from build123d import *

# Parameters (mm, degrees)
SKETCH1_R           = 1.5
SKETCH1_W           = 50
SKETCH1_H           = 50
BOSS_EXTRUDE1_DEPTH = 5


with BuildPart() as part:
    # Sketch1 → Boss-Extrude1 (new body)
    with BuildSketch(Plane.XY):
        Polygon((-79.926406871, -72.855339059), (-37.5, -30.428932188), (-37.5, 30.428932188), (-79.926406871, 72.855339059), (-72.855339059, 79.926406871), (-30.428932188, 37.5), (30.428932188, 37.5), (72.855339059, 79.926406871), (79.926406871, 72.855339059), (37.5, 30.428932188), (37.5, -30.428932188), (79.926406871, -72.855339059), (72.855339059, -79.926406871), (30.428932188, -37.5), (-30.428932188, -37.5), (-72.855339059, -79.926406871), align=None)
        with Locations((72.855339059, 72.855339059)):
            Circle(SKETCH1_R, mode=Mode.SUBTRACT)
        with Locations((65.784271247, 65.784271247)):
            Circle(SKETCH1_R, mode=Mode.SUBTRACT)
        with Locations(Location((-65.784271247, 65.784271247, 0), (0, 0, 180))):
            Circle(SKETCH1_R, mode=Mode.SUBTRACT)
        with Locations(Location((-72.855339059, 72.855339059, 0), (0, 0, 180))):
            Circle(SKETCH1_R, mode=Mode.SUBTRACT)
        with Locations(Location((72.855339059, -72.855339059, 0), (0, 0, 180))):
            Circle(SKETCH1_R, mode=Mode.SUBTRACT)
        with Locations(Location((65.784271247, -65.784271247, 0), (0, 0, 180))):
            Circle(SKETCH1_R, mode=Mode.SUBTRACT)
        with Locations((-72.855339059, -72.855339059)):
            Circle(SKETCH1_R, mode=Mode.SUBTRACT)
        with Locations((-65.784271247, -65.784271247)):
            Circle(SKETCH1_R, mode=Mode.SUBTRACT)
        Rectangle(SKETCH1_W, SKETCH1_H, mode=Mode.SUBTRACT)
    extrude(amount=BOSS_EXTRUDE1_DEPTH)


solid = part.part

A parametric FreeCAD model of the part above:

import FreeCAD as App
import Part
import Sketcher
from FreeCAD import Vector
Q = App.Units.Quantity

doc = App.newDocument("Part")
body = doc.addObject("PartDesign::Body", "Body")

# Sketch on XY plane
sketch1 = doc.addObject("Sketcher::SketchObject", "Sketch")
body.addObject(sketch1)
sketch1.AttachmentSupport = (doc.XY_Plane, [""])
sketch1.MapMode = "FlatFace"
sketch1.addGeometry([
    Part.LineSegment(Vector(-37.5, -30.4, 0), Vector(-79.9, -72.9, 0)),  # 0
    Part.LineSegment(Vector(-79.9, -72.9, 0), Vector(-72.9, -79.9, 0)),  # 1
    Part.LineSegment(Vector(-72.9, -79.9, 0), Vector(-30.4, -37.5, 0)),  # 2
    Part.LineSegment(Vector(-30.4, -37.5, 0), Vector(30.4, -37.5, 0)),  # 3
    Part.LineSegment(Vector(30.4, -37.5, 0), Vector(72.9, -79.9, 0)),  # 4
    Part.LineSegment(Vector(72.9, -79.9, 0), Vector(79.9, -72.9, 0)),  # 5
    Part.LineSegment(Vector(79.9, -72.9, 0), Vector(37.5, -30.4, 0)),  # 6
    Part.LineSegment(Vector(37.5, -30.4, 0), Vector(37.5, 30.4, 0)),  # 7
    Part.LineSegment(Vector(37.5, 30.4, 0), Vector(79.9, 72.9, 0)),  # 8
    Part.LineSegment(Vector(79.9, 72.9, 0), Vector(72.9, 79.9, 0)),  # 9
    Part.LineSegment(Vector(72.9, 79.9, 0), Vector(30.4, 37.5, 0)),  # 10
    Part.LineSegment(Vector(30.4, 37.5, 0), Vector(-30.4, 37.5, 0)),  # 11
    Part.LineSegment(Vector(-30.4, 37.5, 0), Vector(-72.9, 79.9, 0)),  # 12
    Part.LineSegment(Vector(-72.9, 79.9, 0), Vector(-79.9, 72.9, 0)),  # 13
    Part.LineSegment(Vector(-79.9, 72.9, 0), Vector(-37.5, 30.4, 0)),  # 14
    Part.LineSegment(Vector(-37.5, 30.4, 0), Vector(-37.5, -30.4, 0)),  # 15
    Part.Circle(Vector(72.9, -72.9, 0), Vector(0, 0, 1), 1.5),  # 16
    Part.Circle(Vector(65.8, -65.8, 0), Vector(0, 0, 1), 1.5),  # 17
    Part.Circle(Vector(-72.9, -72.9, 0), Vector(0, 0, 1), 1.5),  # 18
    Part.Circle(Vector(-65.8, -65.8, 0), Vector(0, 0, 1), 1.5),  # 19
    Part.Circle(Vector(65.8, 65.8, 0), Vector(0, 0, 1), 1.5),  # 20
    Part.Circle(Vector(72.9, 72.9, 0), Vector(0, 0, 1), 1.5),  # 21
    Part.LineSegment(Vector(-25, -25, 0), Vector(-25, 25, 0)),  # 22
    Part.LineSegment(Vector(-25, 25, 0), Vector(25, 25, 0)),  # 23
    Part.LineSegment(Vector(25, 25, 0), Vector(25, -25, 0)),  # 24
    Part.LineSegment(Vector(25, -25, 0), Vector(-25, -25, 0)),  # 25
    Part.Circle(Vector(-65.8, 65.8, 0), Vector(0, 0, 1), 1.5),  # 26
    Part.Circle(Vector(-72.9, 72.9, 0), Vector(0, 0, 1), 1.5),  # 27
], False)
sketch1.addConstraint([
    Sketcher.Constraint("Coincident", 0, 2, 1, 1),
    Sketcher.Constraint("Coincident", 1, 2, 2, 1),
    Sketcher.Constraint("Coincident", 2, 2, 3, 1),
    Sketcher.Constraint("Coincident", 3, 2, 4, 1),
    Sketcher.Constraint("Coincident", 4, 2, 5, 1),
    Sketcher.Constraint("Coincident", 5, 2, 6, 1),
    Sketcher.Constraint("Coincident", 6, 2, 7, 1),
    Sketcher.Constraint("Coincident", 7, 2, 8, 1),
    Sketcher.Constraint("Coincident", 8, 2, 9, 1),
    Sketcher.Constraint("Coincident", 9, 2, 10, 1),
    Sketcher.Constraint("Coincident", 10, 2, 11, 1),
    Sketcher.Constraint("Coincident", 11, 2, 12, 1),
    Sketcher.Constraint("Coincident", 12, 2, 13, 1),
    Sketcher.Constraint("Coincident", 13, 2, 14, 1),
    Sketcher.Constraint("Coincident", 14, 2, 15, 1),
    Sketcher.Constraint("Coincident", 15, 2, 0, 1),
    Sketcher.Constraint("Coincident", 22, 2, 23, 1),
    Sketcher.Constraint("Coincident", 23, 2, 24, 1),
    Sketcher.Constraint("Coincident", 24, 2, 25, 1),
    Sketcher.Constraint("Coincident", 25, 2, 22, 1),
    Sketcher.Constraint("Horizontal", 3),
    Sketcher.Constraint("Vertical", 7),
    Sketcher.Constraint("Horizontal", 11),
    Sketcher.Constraint("Vertical", 15),
    Sketcher.Constraint("Vertical", 22),
    Sketcher.Constraint("Horizontal", 23),
    Sketcher.Constraint("Vertical", 24),
    Sketcher.Constraint("Horizontal", 25),
    Sketcher.Constraint("Equal", 16, 17),
    Sketcher.Constraint("Equal", 17, 18),
    Sketcher.Constraint("Equal", 18, 19),
    Sketcher.Constraint("Equal", 19, 20),
    Sketcher.Constraint("Equal", 20, 21),
    Sketcher.Constraint("Equal", 21, 26),
    Sketcher.Constraint("Equal", 26, 27),
    Sketcher.Constraint("Symmetric", 19, 3, 20, 3, -1, 1),
    Sketcher.Constraint("Symmetric", 18, 3, 21, 3, -1, 1),
    Sketcher.Constraint("Symmetric", 17, 3, 26, 3, -1, 1),
    Sketcher.Constraint("Symmetric", 16, 3, 27, 3, -1, 1),
    Sketcher.Constraint("Symmetric", 0, 2, 8, 2, -1, 1),
    Sketcher.Constraint("Symmetric", 1, 2, 9, 2, -1, 1),
    Sketcher.Constraint("Symmetric", 2, 2, 10, 2, -1, 1),
    Sketcher.Constraint("Symmetric", 4, 2, 12, 2, -1, 1),
    Sketcher.Constraint("Symmetric", 5, 2, 13, 2, -1, 1),
    Sketcher.Constraint("Symmetric", 6, 2, 14, 2, -1, 1),
    Sketcher.Constraint("Symmetric", 22, 2, 24, 2, -1, 1),
    Sketcher.Constraint("Symmetric", 16, 3, 18, 3, -2),
    Sketcher.Constraint("Symmetric", 17, 3, 19, 3, -2),
    Sketcher.Constraint("Symmetric", 1, 2, 4, 2, -2),
    Sketcher.Constraint("Symmetric", 0, 2, 5, 2, -2),
    Sketcher.Constraint("Perpendicular", 0, 1),
    Sketcher.Constraint("Perpendicular", 1, 2),
    Sketcher.Constraint("Perpendicular", 2, 4),
    Sketcher.Constraint("Perpendicular", 4, 5),
    Sketcher.Constraint("Perpendicular", 5, 6),
    Sketcher.Constraint("Perpendicular", 6, 8),
    Sketcher.Constraint("Perpendicular", 10, 12),
    Sketcher.Constraint("Horizontal", 18, 3, 0, 2),
    Sketcher.Constraint("Vertical", 27, 3, 1, 2),
    Sketcher.Constraint("Equal", 11, 7),
    Sketcher.Constraint("Equal", 25, 22),
    Sketcher.Constraint("Equal", 0, 2),
    Sketcher.Constraint("Diameter", 16, Q("3 mm")),
    Sketcher.Constraint("DistanceX", 23, 1, 23, 2, Q("50 mm")),
    Sketcher.Constraint("Distance", 0, Q("60 mm")),
    Sketcher.Constraint("Distance", 1, Q("10 mm")),
    Sketcher.Constraint("DistanceY", 2, 2, 11, 2, Q("75 mm")),
    Sketcher.Constraint("DistanceX", -1, 1, 17, 3, Q("65.784271 mm")),
    Sketcher.Constraint("DistanceY", 17, 3, -1, 1, Q("65.784271 mm")),
])
pad1 = doc.addObject("PartDesign::Pad", "Pad")
body.addObject(pad1)
pad1.Profile = sketch1
pad1.Length = 5

doc.recompute()
